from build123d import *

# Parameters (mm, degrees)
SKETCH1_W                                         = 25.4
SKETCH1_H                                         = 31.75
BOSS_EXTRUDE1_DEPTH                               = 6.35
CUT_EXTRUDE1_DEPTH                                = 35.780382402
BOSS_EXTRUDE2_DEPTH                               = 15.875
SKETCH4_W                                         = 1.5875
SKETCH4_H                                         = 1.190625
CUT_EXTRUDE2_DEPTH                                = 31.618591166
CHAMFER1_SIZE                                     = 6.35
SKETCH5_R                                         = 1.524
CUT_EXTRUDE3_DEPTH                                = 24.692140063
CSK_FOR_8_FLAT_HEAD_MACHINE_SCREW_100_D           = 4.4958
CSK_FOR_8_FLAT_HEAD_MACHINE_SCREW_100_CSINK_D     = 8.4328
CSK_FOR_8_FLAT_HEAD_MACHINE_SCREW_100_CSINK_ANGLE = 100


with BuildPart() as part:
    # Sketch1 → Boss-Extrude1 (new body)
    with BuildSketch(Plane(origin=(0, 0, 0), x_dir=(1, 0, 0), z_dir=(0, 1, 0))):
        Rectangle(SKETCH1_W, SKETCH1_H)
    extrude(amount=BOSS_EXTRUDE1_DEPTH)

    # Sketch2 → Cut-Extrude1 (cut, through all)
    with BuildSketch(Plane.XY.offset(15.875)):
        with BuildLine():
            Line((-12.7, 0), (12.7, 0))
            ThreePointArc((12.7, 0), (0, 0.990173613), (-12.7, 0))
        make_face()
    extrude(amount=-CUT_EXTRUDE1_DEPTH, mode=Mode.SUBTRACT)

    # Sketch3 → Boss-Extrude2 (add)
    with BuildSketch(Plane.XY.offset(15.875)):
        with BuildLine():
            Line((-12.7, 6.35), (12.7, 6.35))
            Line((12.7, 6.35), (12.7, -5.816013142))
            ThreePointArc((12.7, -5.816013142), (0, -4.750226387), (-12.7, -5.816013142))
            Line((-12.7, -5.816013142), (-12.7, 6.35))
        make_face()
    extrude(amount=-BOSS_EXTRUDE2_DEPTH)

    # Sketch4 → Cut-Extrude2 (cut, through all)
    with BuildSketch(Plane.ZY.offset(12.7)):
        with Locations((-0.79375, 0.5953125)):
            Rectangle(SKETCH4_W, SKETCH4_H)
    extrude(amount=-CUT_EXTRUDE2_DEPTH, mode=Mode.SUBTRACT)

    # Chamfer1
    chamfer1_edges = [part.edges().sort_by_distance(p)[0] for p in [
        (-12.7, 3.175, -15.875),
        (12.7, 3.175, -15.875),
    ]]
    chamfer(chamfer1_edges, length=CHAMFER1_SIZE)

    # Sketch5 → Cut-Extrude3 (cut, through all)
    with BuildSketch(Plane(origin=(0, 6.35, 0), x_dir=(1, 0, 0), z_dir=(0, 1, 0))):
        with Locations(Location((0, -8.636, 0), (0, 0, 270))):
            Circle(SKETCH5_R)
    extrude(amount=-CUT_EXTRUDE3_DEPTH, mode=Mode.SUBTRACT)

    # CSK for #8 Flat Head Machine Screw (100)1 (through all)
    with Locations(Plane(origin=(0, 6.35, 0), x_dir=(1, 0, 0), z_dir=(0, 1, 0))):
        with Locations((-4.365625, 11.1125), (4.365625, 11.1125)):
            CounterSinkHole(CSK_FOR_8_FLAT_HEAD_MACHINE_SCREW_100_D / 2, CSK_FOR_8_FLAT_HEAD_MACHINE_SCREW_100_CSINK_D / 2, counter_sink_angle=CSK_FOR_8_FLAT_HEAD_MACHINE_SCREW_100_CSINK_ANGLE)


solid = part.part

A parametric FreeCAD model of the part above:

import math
import FreeCAD as App
import Part
import Sketcher
from FreeCAD import Vector
Q = App.Units.Quantity


def edges_at(feature, points):
    """Names of the edges that pass closest to the given points."""
    edges = feature.Shape.Edges
    near = lambda p: min(range(len(edges)), key=lambda i: edges[i].distToShape(Part.Vertex(*p))[0])
    return sorted({f"Edge{near(p) + 1}" for p in points})


def add_polygon(sketch, points):
    """Adds a closed chain of lines whose ends are joined by coincident constraints."""
    first, n = sketch.GeometryCount, len(points)
    for a, b in zip(points, points[1:] + points[:1]):
        sketch.addGeometry(Part.LineSegment(App.Vector(*a, 0), App.Vector(*b, 0)), False)
    for i in range(n):
        sketch.addConstraint(Sketcher.Constraint("Coincident", first + i, 2, first + (i + 1) % n, 1))

doc = App.newDocument("Part")
body = doc.addObject("PartDesign::Body", "Body")

# Sketch on XZ plane
sketch1 = doc.addObject("Sketcher::SketchObject", "Sketch")
body.addObject(sketch1)
sketch1.AttachmentSupport = (doc.XZ_Plane, [""])
sketch1.MapMode = "FlatFace"
add_polygon(sketch1, [(-13, -16), (-13, 16), (13, 16), (13, -16)])  # lines 0-3
sketch1.addConstraint([
    Sketcher.Constraint("Vertical", 0),
    Sketcher.Constraint("Horizontal", 1),
    Sketcher.Constraint("Vertical", 2),
    Sketcher.Constraint("Horizontal", 3),
    Sketcher.Constraint("Symmetric", 0, 2, 2, 2, -1, 1),
    Sketcher.Constraint("DistanceX", 1, 1, 1, 2, Q("1 in")),
    Sketcher.Constraint("DistanceY", 0, 1, 0, 2, Q("1.25 in")),
])
pad1 = doc.addObject("PartDesign::Pad", "Pad")
body.addObject(pad1)
pad1.Profile = sketch1
pad1.Length = Q("0.25 in")
pad1.Reversed = True

# Sketch on XY plane
sketch2 = doc.addObject("Sketcher::SketchObject", "Sketch001")
body.addObject(sketch2)
sketch2.AttachmentSupport = (doc.XY_Plane, [""])
sketch2.MapMode = "FlatFace"
sketch2.AttachmentOffset = App.Placement(Vector(0, 0, 0.625 * 25.4), App.Rotation())
sketch2.addGeometry([
    Part.LineSegment(Vector(-13, 0, 0), Vector(13, 0, 0)),
    Part.ArcOfCircle(Part.Circle(Vector(0, -81, 0), Vector(0, 0, 1), 82), math.radians(81.08), math.radians(98.92)),
], False)
sketch2.addConstraint([
    Sketcher.Constraint("Coincident", 0, 1, 1, 2),
    Sketcher.Constraint("Coincident", 1, 1, 0, 2),
    Sketcher.Constraint("Horizontal", 0),
    Sketcher.Constraint("Symmetric", 0, 1, 1, 1, -1, 1),
    Sketcher.Constraint("DistanceX", 0, 1, 0, 2, Q("1 in")),
    Sketcher.Constraint("Radius", 1, Q("3.226 in")),
])
pocket1 = doc.addObject("PartDesign::Pocket", "Pocket")
body.addObject(pocket1)
pocket1.Profile = sketch2
pocket1.Type = "ThroughAll"

# Sketch on XY plane
sketch3 = doc.addObject("Sketcher::SketchObject", "Sketch002")
body.addObject(sketch3)
sketch3.AttachmentSupport = (doc.XY_Plane, [""])
sketch3.MapMode = "FlatFace"
sketch3.AttachmentOffset = App.Placement(Vector(0, 0, 0.625 * 25.4), App.Rotation())
sketch3.addGeometry([
    Part.LineSegment(Vector(13, 6, 0), Vector(-13, 6, 0)),
    Part.LineSegment(Vector(-13, 6, 0), Vector(-13, -6, 0)),
    Part.ArcOfCircle(Part.Circle(Vector(0, -81, 0), Vector(0, 0, 1), 76), math.radians(80.41), math.radians(99.59)),
    Part.LineSegment(Vector(13, -6, 0), Vector(13, 6, 0)),
], False)
sketch3.addConstraint([
    Sketcher.Constraint("Coincident", 0, 2, 1, 1),
    Sketcher.Constraint("Coincident", 1, 2, 2, 2),
    Sketcher.Constraint("Coincident", 2, 1, 3, 1),
    Sketcher.Constraint("Coincident", 3, 2, 0, 1),
    Sketcher.Constraint("Horizontal", 0),
    Sketcher.Constraint("Vertical", 1),
    Sketcher.Constraint("Vertical", 3),
    Sketcher.Constraint("Symmetric", 1, 2, 2, 1, -2),
    Sketcher.Constraint("Radius", 2, Q("3 in")),
    Sketcher.Constraint("DistanceX", 0, 2, 0, 1, Q("1 in")),
    Sketcher.Constraint("DistanceY", -1, 1, 0, 2, Q("0.25 in")),
    Sketcher.Constraint("DistanceY", 1, 2, 1, 1, 12.166013),
])
pad2 = doc.addObject("PartDesign::Pad", "Pad001")
body.addObject(pad2)
pad2.Profile = sketch3
pad2.Length = Q("0.625 in")
pad2.Reversed = True

# Sketch on YZ plane
sketch4 = doc.addObject("Sketcher::SketchObject", "Sketch003")
body.addObject(sketch4)
sketch4.AttachmentSupport = (doc.YZ_Plane, [""])
sketch4.MapMode = "FlatFace"
sketch4.AttachmentOffset = App.Placement(Vector(0, 0, -0.5 * 25.4), App.Rotation())
add_polygon(sketch4, [(1.2, -1.6), (0, -1.6), (0, 0), (1.2, 0)])  # lines 0-3
sketch4.addConstraint([
    Sketcher.Constraint("Horizontal", 0),
    Sketcher.Constraint("Vertical", 1),
    Sketcher.Constraint("Horizontal", 2),
    Sketcher.Constraint("Vertical", 3),
    Sketcher.Constraint("Coincident", 1, 2, -1, 1),
    Sketcher.Constraint("DistanceX", 0, 2, 0, 1, Q("0.046875 in")),
    Sketcher.Constraint("DistanceY", 1, 1, 1, 2, Q("0.0625 in")),
])
pocket2 = doc.addObject("PartDesign::Pocket", "Pocket001")
body.addObject(pocket2)
pocket2.Profile = sketch4
pocket2.Type = "ThroughAll"
pocket2.Reversed = True
doc.recompute()

chamfer = doc.addObject("PartDesign::Chamfer", "Chamfer")
body.addObject(chamfer)
chamfer.Base = (pocket2, edges_at(pocket2, [(-12.7, 3.175, -15.875), (12.7, 3.175, -15.875)]))
chamfer.Size = Q("0.25 in")

# Sketch on XZ plane
sketch5 = doc.addObject("Sketcher::SketchObject", "Sketch004")
body.addObject(sketch5)
sketch5.AttachmentSupport = (doc.XZ_Plane, [""])
sketch5.MapMode = "FlatFace"
sketch5.AttachmentOffset = App.Placement(Vector(0, 0, -0.25 * 25.4), App.Rotation())
sketch5.addGeometry(Part.Circle(Vector(0, 8.6, 0), Vector(0, 0, 1), 1.5), False)
sketch5.addConstraint([
    Sketcher.Constraint("PointOnObject", 0, 3, -2),
    Sketcher.Constraint("Diameter", 0, Q("0.12 in")),
    Sketcher.Constraint("DistanceY", -1, 1, 0, 3, Q("0.34 in")),
])
pocket3 = doc.addObject("PartDesign::Pocket", "Pocket002")
body.addObject(pocket3)
pocket3.Profile = sketch5
pocket3.Type = "ThroughAll"
pocket3.Reversed = True

# Sketch on XZ plane
sketch6 = doc.addObject("Sketcher::SketchObject", "Sketch005")
body.addObject(sketch6)
sketch6.AttachmentSupport = (doc.XZ_Plane, [""])
sketch6.MapMode = "FlatFace"
sketch6.AttachmentOffset = App.Placement(Vector(0, 0, -0.25 * 25.4), App.Rotation())
sketch6.addGeometry([
    Part.Circle(Vector(-4.4, -11.1, 0), Vector(0, 0, 1), 2.2),
    Part.Circle(Vector(4.4, -11.1, 0), Vector(0, 0, 1), 2.2),
], False)
sketch6.addConstraint([
    Sketcher.Constraint("Equal", 0, 1),
    Sketcher.Constraint("Symmetric", 0, 3, 1, 3, -2),
    Sketcher.Constraint("Diameter", 0, Q("0.177 in")),
    Sketcher.Constraint("DistanceX", 0, 3, -1, 1, Q("0.171875 in")),
    Sketcher.Constraint("DistanceY", 0, 3, -1, 1, Q("0.4375 in")),
])
doc.recompute()
hole = doc.addObject("PartDesign::Hole", "Hole")
body.addObject(hole)
hole.Profile = sketch6
hole.ThreadType = "None"
hole.Diameter = Q("0.177 in")
hole.DepthType = "ThroughAll"
hole.HoleCutType = "Countersink"
hole.HoleCutDiameter = Q("0.332 in")
hole.HoleCutCountersinkAngle = 100
hole.Reversed = True

doc.recompute()
